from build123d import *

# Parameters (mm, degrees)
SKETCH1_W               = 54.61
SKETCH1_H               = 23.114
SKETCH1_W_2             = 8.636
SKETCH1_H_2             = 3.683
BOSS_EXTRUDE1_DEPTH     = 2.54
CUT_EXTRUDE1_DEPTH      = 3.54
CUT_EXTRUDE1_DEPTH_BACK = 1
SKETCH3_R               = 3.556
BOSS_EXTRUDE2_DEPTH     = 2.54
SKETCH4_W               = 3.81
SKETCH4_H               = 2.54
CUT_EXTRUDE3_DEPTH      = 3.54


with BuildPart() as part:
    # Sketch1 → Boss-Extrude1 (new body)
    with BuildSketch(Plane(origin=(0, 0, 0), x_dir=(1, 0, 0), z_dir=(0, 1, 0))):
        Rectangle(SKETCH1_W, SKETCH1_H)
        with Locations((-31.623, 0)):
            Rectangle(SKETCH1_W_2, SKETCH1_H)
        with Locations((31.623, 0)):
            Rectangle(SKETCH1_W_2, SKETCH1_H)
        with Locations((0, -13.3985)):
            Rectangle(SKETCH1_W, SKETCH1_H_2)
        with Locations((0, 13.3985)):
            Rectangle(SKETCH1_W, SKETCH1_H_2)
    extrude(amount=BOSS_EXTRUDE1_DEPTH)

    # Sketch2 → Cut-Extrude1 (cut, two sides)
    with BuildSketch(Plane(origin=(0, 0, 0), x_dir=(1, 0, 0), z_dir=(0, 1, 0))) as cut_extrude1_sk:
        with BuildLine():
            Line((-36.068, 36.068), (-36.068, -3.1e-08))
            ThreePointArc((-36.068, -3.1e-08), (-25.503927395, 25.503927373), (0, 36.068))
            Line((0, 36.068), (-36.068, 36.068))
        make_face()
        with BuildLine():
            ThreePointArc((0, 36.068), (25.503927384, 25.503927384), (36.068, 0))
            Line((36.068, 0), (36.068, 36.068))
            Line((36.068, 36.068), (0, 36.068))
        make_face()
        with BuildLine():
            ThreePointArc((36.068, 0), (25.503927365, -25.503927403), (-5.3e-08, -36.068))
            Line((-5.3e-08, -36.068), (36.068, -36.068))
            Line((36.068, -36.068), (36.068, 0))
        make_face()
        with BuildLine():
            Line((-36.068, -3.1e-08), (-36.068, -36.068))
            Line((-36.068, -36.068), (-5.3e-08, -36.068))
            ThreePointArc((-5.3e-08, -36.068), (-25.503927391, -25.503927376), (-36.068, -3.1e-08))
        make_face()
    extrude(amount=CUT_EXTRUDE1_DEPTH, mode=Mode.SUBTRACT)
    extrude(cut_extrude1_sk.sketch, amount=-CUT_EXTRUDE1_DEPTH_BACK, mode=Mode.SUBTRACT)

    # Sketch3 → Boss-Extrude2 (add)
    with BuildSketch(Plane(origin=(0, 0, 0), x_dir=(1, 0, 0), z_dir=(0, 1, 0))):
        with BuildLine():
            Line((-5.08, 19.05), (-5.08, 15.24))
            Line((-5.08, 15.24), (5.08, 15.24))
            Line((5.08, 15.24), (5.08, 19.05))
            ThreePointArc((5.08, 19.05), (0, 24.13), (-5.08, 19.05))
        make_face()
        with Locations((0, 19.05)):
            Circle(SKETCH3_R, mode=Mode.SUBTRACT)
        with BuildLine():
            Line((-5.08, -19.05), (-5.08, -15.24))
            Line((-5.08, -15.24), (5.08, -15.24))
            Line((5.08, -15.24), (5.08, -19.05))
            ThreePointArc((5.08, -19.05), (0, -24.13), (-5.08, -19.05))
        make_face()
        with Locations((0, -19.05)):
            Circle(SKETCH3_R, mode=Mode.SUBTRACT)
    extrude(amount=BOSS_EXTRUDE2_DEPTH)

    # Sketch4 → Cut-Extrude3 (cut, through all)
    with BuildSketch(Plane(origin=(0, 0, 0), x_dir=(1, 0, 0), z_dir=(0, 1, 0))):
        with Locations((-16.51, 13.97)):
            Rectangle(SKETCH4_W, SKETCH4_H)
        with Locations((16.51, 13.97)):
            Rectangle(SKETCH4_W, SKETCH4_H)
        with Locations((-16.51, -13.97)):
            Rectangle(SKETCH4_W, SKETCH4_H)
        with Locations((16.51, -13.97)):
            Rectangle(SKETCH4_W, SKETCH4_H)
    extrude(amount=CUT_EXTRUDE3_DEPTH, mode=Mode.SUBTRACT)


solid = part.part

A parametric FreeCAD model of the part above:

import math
import FreeCAD as App
import Part
import Sketcher

V = App.Vector
Q = App.Units.Quantity

doc = App.newDocument("Part")
body = doc.addObject("PartDesign::Body", "Body")

# Sketch on XZ plane
sketch1 = doc.addObject("Sketcher::SketchObject", "Sketch")
body.addObject(sketch1)
sketch1.AttachmentSupport = (doc.XZ_Plane, [""])
sketch1.MapMode = "FlatFace"
sketch1.addGeometry([
    Part.LineSegment(V(-35.9, -11.6, 0), V(-35.9, 11.6, 0)),  # 0
    Part.LineSegment(V(-35.9, 11.6, 0), V(-27.3, 11.6, 0)),  # 1
    Part.LineSegment(V(-27.3, 11.6, 0), V(-27.3, 15.2, 0)),  # 2
    Part.LineSegment(V(-27.3, 15.2, 0), V(27.3, 15.2, 0)),  # 3
    Part.LineSegment(V(27.3, 15.2, 0), V(27.3, 11.6, 0)),  # 4
    Part.LineSegment(V(27.3, 11.6, 0), V(35.9, 11.6, 0)),  # 5
    Part.LineSegment(V(35.9, 11.6, 0), V(35.9, -11.6, 0)),  # 6
    Part.LineSegment(V(35.9, -11.6, 0), V(27.3, -11.6, 0)),  # 7
    Part.LineSegment(V(27.3, -11.6, 0), V(27.3, -15.2, 0)),  # 8
    Part.LineSegment(V(27.3, -15.2, 0), V(-27.3, -15.2, 0)),  # 9
    Part.LineSegment(V(-27.3, -15.2, 0), V(-27.3, -11.6, 0)),  # 10
    Part.LineSegment(V(-27.3, -11.6, 0), V(-35.9, -11.6, 0)),  # 11
], False)
sketch1.addConstraint([
    Sketcher.Constraint("Coincident", 0, 2, 1, 1),
    Sketcher.Constraint("Coincident", 1, 2, 2, 1),
    Sketcher.Constraint("Coincident", 2, 2, 3, 1),
    Sketcher.Constraint("Coincident", 3, 2, 4, 1),
    Sketcher.Constraint("Coincident", 4, 2, 5, 1),
    Sketcher.Constraint("Coincident", 5, 2, 6, 1),
    Sketcher.Constraint("Coincident", 6, 2, 7, 1),
    Sketcher.Constraint("Coincident", 7, 2, 8, 1),
    Sketcher.Constraint("Coincident", 8, 2, 9, 1),
    Sketcher.Constraint("Coincident", 9, 2, 10, 1),
    Sketcher.Constraint("Coincident", 10, 2, 11, 1),
    Sketcher.Constraint("Coincident", 11, 2, 0, 1),
    Sketcher.Constraint("Vertical", 0),
    Sketcher.Constraint("Horizontal", 1),
    Sketcher.Constraint("Vertical", 2),
    Sketcher.Constraint("Horizontal", 3),
    Sketcher.Constraint("Vertical", 4),
    Sketcher.Constraint("Horizontal", 5),
    Sketcher.Constraint("Vertical", 6),
    Sketcher.Constraint("Horizontal", 7),
    Sketcher.Constraint("Vertical", 8),
    Sketcher.Constraint("Horizontal", 9),
    Sketcher.Constraint("Vertical", 10),
    Sketcher.Constraint("Horizontal", 11),
    Sketcher.Constraint("Symmetric", 0, 2, 6, 2, -1, 1),
    Sketcher.Constraint("Symmetric", 2, 2, 8, 2, -1, 1),
    Sketcher.Constraint("Symmetric", 4, 2, 10, 2, -1, 1),
    Sketcher.Constraint("Symmetric", 1, 2, 4, 2, -2),
    Sketcher.Constraint("DistanceX", 1, 1, 1, 2, Q("0.34 in")),
    Sketcher.Constraint("DistanceX", 3, 1, 3, 2, Q("2.15 in")),
    Sketcher.Constraint("DistanceY", 0, 1, 0, 2, Q("0.91 in")),
    Sketcher.Constraint("DistanceY", -1, 1, 2, 2, Q("0.6 in")),
])
pad1 = doc.addObject("PartDesign::Pad", "Pad")
body.addObject(pad1)
pad1.Profile = sketch1
pad1.Length = Q("0.1 in")
pad1.Reversed = True

# Sketch on XZ plane
sketch2 = doc.addObject("Sketcher::SketchObject", "Sketch001")
body.addObject(sketch2)
sketch2.AttachmentSupport = (doc.XZ_Plane, [""])
sketch2.MapMode = "FlatFace"
sketch2.addGeometry([
    Part.LineSegment(V(-36, -36, 0), V(-36, 0, 0)),  # 0
    Part.ArcOfCircle(Part.Circle(V(0, 0, 0), V(0, 0, 1), 36), math.radians(180), math.radians(270)),  # 1
    Part.LineSegment(V(0, -36, 0), V(-36, -36, 0)),  # 2
    Part.ArcOfCircle(Part.Circle(V(0, 0, 0), V(0, 0, 1), 36), math.radians(-90), math.radians(0)),  # 3
    Part.LineSegment(V(36, 0, 0), V(36, -36, 0)),  # 4
    Part.LineSegment(V(36, -36, 0), V(0, -36, 0)),  # 5
    Part.ArcOfCircle(Part.Circle(V(0, 0, 0), V(0, 0, 1), 36), math.radians(0), math.radians(90)),  # 6
    Part.LineSegment(V(0, 36, 0), V(36, 36, 0)),  # 7
    Part.LineSegment(V(36, 36, 0), V(36, 0, 0)),  # 8
    Part.LineSegment(V(-36, 0, 0), V(-36, 36, 0)),  # 9
    Part.LineSegment(V(-36, 36, 0), V(0, 36, 0)),  # 10
    Part.ArcOfCircle(Part.Circle(V(0, 0, 0), V(0, 0, 1), 36), math.radians(90), math.radians(180)),  # 11
], False)
sketch2.addConstraint([
    Sketcher.Constraint("Tangent", 0, 2, 1, 1),
    Sketcher.Constraint("Tangent", 1, 2, 2, 1),
    Sketcher.Constraint("Coincident", 2, 2, 0, 1),
    Sketcher.Constraint("Tangent", 3, 2, 4, 1),
    Sketcher.Constraint("Coincident", 4, 2, 5, 1),
    Sketcher.Constraint("Tangent", 5, 2, 3, 1),
    Sketcher.Constraint("Tangent", 6, 2, 7, 1),
    Sketcher.Constraint("Coincident", 7, 2, 8, 1),
    Sketcher.Constraint("Tangent", 8, 2, 6, 1),
    Sketcher.Constraint("Coincident", 9, 2, 10, 1),
    Sketcher.Constraint("Tangent", 10, 2, 11, 1),
    Sketcher.Constraint("Tangent", 11, 2, 9, 1),
    Sketcher.Constraint("Vertical", 0),
    Sketcher.Constraint("Horizontal", 2),
    Sketcher.Constraint("Vertical", 4),
    Sketcher.Constraint("Horizontal", 5),
    Sketcher.Constraint("Horizontal", 7),
    Sketcher.Constraint("Vertical", 8),
    Sketcher.Constraint("Vertical", 9),
    Sketcher.Constraint("Horizontal", 10),
    Sketcher.Constraint("Coincident", 1, 3, -1, 1),
    Sketcher.Constraint("Coincident", 3, 3, -1, 1),
    Sketcher.Constraint("Coincident", 6, 3, -1, 1),
    Sketcher.Constraint("Coincident", 11, 3, -1, 1),
    Sketcher.Constraint("Equal", 1, 3),
    Sketcher.Constraint("Equal", 3, 6),
    Sketcher.Constraint("Equal", 6, 11),
    Sketcher.Constraint("Radius", 1, Q("1.42 in")),
])
pocket1 = doc.addObject("PartDesign::Pocket", "Pocket")
body.addObject(pocket1)
pocket1.Profile = sketch2
pocket1.Type = "ThroughAll"
pocket1.Midplane = True

# Sketch on XZ plane
sketch3 = doc.addObject("Sketcher::SketchObject", "Sketch002")
body.addObject(sketch3)
sketch3.AttachmentSupport = (doc.XZ_Plane, [""])
sketch3.MapMode = "FlatFace"
sketch3.addGeometry([
    Part.LineSegment(V(-5.1, -19.1, 0), V(-5.1, -15.2, 0)),  # 0
    Part.LineSegment(V(-5.1, -15.2, 0), V(5.1, -15.2, 0)),  # 1
    Part.LineSegment(V(5.1, -15.2, 0), V(5.1, -19.1, 0)),  # 2
    Part.ArcOfCircle(Part.Circle(V(0, -19.1, 0), V(0, 0, 1), 5.1), math.radians(180), math.radians(360)),  # 3
    Part.Circle(V(0, -19.1, 0), V(0, 0, 1), 3.6),  # 4
    Part.LineSegment(V(-5.1, 15.2, 0), V(-5.1, 19.1, 0)),  # 5
    Part.ArcOfCircle(Part.Circle(V(0, 19.1, 0), V(0, 0, 1), 5.1), math.radians(0), math.radians(180)),  # 6
    Part.LineSegment(V(5.1, 19.1, 0), V(5.1, 15.2, 0)),  # 7
    Part.LineSegment(V(5.1, 15.2, 0), V(-5.1, 15.2, 0)),  # 8
    Part.Circle(V(0, 19.1, 0), V(0, 0, 1), 3.6),  # 9
], False)
sketch3.addConstraint([
    Sketcher.Constraint("Coincident", 0, 2, 1, 1),
    Sketcher.Constraint("Coincident", 1, 2, 2, 1),
    Sketcher.Constraint("Tangent", 2, 2, 3, 2),
    Sketcher.Constraint("Tangent", 3, 1, 0, 1),
    Sketcher.Constraint("Tangent", 5, 2, 6, 2),
    Sketcher.Constraint("Tangent", 6, 1, 7, 1),
    Sketcher.Constraint("Coincident", 7, 2, 8, 1),
    Sketcher.Constraint("Coincident", 8, 2, 5, 1),
    Sketcher.Constraint("Vertical", 0),
    Sketcher.Constraint("Horizontal", 1),
    Sketcher.Constraint("Vertical", 2),
    Sketcher.Constraint("Vertical", 5),
    Sketcher.Constraint("Vertical", 7),
    Sketcher.Constraint("Horizontal", 8),
    Sketcher.Constraint("Coincident", 4, 3, 3, 3),
    Sketcher.Constraint("Coincident", 9, 3, 6, 3),
    Sketcher.Constraint("Equal", 3, 6),
    Sketcher.Constraint("Equal", 4, 9),
    Sketcher.Constraint("Symmetric", 3, 3, 6, 3, -1, 1),
    Sketcher.Constraint("Symmetric", 1, 2, 7, 2, -1),
    Sketcher.Constraint("Radius", 3, Q("0.2 in")),
    Sketcher.Constraint("Diameter", 4, Q("0.28 in")),
    Sketcher.Constraint("DistanceY", 0, 1, 0, 2, Q("0.15 in")),
    Sketcher.Constraint("DistanceY", 0, 2, -1, 1, Q("0.6 in")),
])
pad2 = doc.addObject("PartDesign::Pad", "Pad001")
body.addObject(pad2)
pad2.Profile = sketch3
pad2.Length = Q("0.1 in")
pad2.Reversed = True

# Sketch on XZ plane
sketch4 = doc.addObject("Sketcher::SketchObject", "Sketch003")
body.addObject(sketch4)
sketch4.AttachmentSupport = (doc.XZ_Plane, [""])
sketch4.MapMode = "FlatFace"
sketch4.addGeometry([
    Part.LineSegment(V(-18.4, -15.2, 0), V(-18.4, -12.7, 0)),  # 0
    Part.LineSegment(V(-18.4, -12.7, 0), V(-14.6, -12.7, 0)),  # 1
    Part.LineSegment(V(-14.6, -12.7, 0), V(-14.6, -15.2, 0)),  # 2
    Part.LineSegment(V(-14.6, -15.2, 0), V(-18.4, -15.2, 0)),  # 3
    Part.LineSegment(V(14.6, -15.2, 0), V(14.6, -12.7, 0)),  # 4
    Part.LineSegment(V(14.6, -12.7, 0), V(18.4, -12.7, 0)),  # 5
    Part.LineSegment(V(18.4, -12.7, 0), V(18.4, -15.2, 0)),  # 6
    Part.LineSegment(V(18.4, -15.2, 0), V(14.6, -15.2, 0)),  # 7
    Part.LineSegment(V(-18.4, 12.7, 0), V(-18.4, 15.2, 0)),  # 8
    Part.LineSegment(V(-18.4, 15.2, 0), V(-14.6, 15.2, 0)),  # 9
    Part.LineSegment(V(-14.6, 15.2, 0), V(-14.6, 12.7, 0)),  # 10
    Part.LineSegment(V(-14.6, 12.7, 0), V(-18.4, 12.7, 0)),  # 11
    Part.LineSegment(V(14.6, 12.7, 0), V(14.6, 15.2, 0)),  # 12
    Part.LineSegment(V(14.6, 15.2, 0), V(18.4, 15.2, 0)),  # 13
    Part.LineSegment(V(18.4, 15.2, 0), V(18.4, 12.7, 0)),  # 14
    Part.LineSegment(V(18.4, 12.7, 0), V(14.6, 12.7, 0)),  # 15
], False)
sketch4.addConstraint([
    Sketcher.Constraint("Coincident", 0, 2, 1, 1),
    Sketcher.Constraint("Coincident", 1, 2, 2, 1),
    Sketcher.Constraint("Coincident", 2, 2, 3, 1),
    Sketcher.Constraint("Coincident", 3, 2, 0, 1),
    Sketcher.Constraint("Coincident", 4, 2, 5, 1),
    Sketcher.Constraint("Coincident", 5, 2, 6, 1),
    Sketcher.Constraint("Coincident", 6, 2, 7, 1),
    Sketcher.Constraint("Coincident", 7, 2, 4, 1),
    Sketcher.Constraint("Coincident", 8, 2, 9, 1),
    Sketcher.Constraint("Coincident", 9, 2, 10, 1),
    Sketcher.Constraint("Coincident", 10, 2, 11, 1),
    Sketcher.Constraint("Coincident", 11, 2, 8, 1),
    Sketcher.Constraint("Coincident", 12, 2, 13, 1),
    Sketcher.Constraint("Coincident", 13, 2, 14, 1),
    Sketcher.Constraint("Coincident", 14, 2, 15, 1),
    Sketcher.Constraint("Coincident", 15, 2, 12, 1),
    Sketcher.Constraint("Vertical", 0),
    Sketcher.Constraint("Horizontal", 1),
    Sketcher.Constraint("Vertical", 2),
    Sketcher.Constraint("Horizontal", 3),
    Sketcher.Constraint("Vertical", 4),
    Sketcher.Constraint("Horizontal", 5),
    Sketcher.Constraint("Vertical", 6),
    Sketcher.Constraint("Horizontal", 7),
    Sketcher.Constraint("Vertical", 8),
    Sketcher.Constraint("Horizontal", 9),
    Sketcher.Constraint("Vertical", 10),
    Sketcher.Constraint("Horizontal", 11),
    Sketcher.Constraint("Vertical", 12),
    Sketcher.Constraint("Horizontal", 13),
    Sketcher.Constraint("Vertical", 14),
    Sketcher.Constraint("Horizontal", 15),
    Sketcher.Constraint("Symmetric", 6, 2, 8, 2, -1, 1),
    Sketcher.Constraint("Symmetric", 4, 2, 10, 2, -1, 1),
    Sketcher.Constraint("Symmetric", 2, 2, 12, 2, -1, 1),
    Sketcher.Constraint("Symmetric", 0, 2, 14, 2, -1, 1),
    Sketcher.Constraint("Symmetric", 1, 2, 4, 2, -2),
    Sketcher.Constraint("Symmetric", 3, 2, 6, 2, -2),
    Sketcher.Constraint("DistanceY", 0, 1, 0, 2, Q("0.1 in")),
    Sketcher.Constraint("DistanceY", 1, 2, 10, 2, Q("1 in")),
    Sketcher.Constraint("DistanceX", 1, 1, 1, 2, Q("0.15 in")),
    Sketcher.Constraint("DistanceX", 0, 2, 4, 2, Q("1.3 in")),
])
pocket2 = doc.addObject("PartDesign::Pocket", "Pocket001")
body.addObject(pocket2)
pocket2.Profile = sketch4
pocket2.Type = "ThroughAll"

doc.recompute()
